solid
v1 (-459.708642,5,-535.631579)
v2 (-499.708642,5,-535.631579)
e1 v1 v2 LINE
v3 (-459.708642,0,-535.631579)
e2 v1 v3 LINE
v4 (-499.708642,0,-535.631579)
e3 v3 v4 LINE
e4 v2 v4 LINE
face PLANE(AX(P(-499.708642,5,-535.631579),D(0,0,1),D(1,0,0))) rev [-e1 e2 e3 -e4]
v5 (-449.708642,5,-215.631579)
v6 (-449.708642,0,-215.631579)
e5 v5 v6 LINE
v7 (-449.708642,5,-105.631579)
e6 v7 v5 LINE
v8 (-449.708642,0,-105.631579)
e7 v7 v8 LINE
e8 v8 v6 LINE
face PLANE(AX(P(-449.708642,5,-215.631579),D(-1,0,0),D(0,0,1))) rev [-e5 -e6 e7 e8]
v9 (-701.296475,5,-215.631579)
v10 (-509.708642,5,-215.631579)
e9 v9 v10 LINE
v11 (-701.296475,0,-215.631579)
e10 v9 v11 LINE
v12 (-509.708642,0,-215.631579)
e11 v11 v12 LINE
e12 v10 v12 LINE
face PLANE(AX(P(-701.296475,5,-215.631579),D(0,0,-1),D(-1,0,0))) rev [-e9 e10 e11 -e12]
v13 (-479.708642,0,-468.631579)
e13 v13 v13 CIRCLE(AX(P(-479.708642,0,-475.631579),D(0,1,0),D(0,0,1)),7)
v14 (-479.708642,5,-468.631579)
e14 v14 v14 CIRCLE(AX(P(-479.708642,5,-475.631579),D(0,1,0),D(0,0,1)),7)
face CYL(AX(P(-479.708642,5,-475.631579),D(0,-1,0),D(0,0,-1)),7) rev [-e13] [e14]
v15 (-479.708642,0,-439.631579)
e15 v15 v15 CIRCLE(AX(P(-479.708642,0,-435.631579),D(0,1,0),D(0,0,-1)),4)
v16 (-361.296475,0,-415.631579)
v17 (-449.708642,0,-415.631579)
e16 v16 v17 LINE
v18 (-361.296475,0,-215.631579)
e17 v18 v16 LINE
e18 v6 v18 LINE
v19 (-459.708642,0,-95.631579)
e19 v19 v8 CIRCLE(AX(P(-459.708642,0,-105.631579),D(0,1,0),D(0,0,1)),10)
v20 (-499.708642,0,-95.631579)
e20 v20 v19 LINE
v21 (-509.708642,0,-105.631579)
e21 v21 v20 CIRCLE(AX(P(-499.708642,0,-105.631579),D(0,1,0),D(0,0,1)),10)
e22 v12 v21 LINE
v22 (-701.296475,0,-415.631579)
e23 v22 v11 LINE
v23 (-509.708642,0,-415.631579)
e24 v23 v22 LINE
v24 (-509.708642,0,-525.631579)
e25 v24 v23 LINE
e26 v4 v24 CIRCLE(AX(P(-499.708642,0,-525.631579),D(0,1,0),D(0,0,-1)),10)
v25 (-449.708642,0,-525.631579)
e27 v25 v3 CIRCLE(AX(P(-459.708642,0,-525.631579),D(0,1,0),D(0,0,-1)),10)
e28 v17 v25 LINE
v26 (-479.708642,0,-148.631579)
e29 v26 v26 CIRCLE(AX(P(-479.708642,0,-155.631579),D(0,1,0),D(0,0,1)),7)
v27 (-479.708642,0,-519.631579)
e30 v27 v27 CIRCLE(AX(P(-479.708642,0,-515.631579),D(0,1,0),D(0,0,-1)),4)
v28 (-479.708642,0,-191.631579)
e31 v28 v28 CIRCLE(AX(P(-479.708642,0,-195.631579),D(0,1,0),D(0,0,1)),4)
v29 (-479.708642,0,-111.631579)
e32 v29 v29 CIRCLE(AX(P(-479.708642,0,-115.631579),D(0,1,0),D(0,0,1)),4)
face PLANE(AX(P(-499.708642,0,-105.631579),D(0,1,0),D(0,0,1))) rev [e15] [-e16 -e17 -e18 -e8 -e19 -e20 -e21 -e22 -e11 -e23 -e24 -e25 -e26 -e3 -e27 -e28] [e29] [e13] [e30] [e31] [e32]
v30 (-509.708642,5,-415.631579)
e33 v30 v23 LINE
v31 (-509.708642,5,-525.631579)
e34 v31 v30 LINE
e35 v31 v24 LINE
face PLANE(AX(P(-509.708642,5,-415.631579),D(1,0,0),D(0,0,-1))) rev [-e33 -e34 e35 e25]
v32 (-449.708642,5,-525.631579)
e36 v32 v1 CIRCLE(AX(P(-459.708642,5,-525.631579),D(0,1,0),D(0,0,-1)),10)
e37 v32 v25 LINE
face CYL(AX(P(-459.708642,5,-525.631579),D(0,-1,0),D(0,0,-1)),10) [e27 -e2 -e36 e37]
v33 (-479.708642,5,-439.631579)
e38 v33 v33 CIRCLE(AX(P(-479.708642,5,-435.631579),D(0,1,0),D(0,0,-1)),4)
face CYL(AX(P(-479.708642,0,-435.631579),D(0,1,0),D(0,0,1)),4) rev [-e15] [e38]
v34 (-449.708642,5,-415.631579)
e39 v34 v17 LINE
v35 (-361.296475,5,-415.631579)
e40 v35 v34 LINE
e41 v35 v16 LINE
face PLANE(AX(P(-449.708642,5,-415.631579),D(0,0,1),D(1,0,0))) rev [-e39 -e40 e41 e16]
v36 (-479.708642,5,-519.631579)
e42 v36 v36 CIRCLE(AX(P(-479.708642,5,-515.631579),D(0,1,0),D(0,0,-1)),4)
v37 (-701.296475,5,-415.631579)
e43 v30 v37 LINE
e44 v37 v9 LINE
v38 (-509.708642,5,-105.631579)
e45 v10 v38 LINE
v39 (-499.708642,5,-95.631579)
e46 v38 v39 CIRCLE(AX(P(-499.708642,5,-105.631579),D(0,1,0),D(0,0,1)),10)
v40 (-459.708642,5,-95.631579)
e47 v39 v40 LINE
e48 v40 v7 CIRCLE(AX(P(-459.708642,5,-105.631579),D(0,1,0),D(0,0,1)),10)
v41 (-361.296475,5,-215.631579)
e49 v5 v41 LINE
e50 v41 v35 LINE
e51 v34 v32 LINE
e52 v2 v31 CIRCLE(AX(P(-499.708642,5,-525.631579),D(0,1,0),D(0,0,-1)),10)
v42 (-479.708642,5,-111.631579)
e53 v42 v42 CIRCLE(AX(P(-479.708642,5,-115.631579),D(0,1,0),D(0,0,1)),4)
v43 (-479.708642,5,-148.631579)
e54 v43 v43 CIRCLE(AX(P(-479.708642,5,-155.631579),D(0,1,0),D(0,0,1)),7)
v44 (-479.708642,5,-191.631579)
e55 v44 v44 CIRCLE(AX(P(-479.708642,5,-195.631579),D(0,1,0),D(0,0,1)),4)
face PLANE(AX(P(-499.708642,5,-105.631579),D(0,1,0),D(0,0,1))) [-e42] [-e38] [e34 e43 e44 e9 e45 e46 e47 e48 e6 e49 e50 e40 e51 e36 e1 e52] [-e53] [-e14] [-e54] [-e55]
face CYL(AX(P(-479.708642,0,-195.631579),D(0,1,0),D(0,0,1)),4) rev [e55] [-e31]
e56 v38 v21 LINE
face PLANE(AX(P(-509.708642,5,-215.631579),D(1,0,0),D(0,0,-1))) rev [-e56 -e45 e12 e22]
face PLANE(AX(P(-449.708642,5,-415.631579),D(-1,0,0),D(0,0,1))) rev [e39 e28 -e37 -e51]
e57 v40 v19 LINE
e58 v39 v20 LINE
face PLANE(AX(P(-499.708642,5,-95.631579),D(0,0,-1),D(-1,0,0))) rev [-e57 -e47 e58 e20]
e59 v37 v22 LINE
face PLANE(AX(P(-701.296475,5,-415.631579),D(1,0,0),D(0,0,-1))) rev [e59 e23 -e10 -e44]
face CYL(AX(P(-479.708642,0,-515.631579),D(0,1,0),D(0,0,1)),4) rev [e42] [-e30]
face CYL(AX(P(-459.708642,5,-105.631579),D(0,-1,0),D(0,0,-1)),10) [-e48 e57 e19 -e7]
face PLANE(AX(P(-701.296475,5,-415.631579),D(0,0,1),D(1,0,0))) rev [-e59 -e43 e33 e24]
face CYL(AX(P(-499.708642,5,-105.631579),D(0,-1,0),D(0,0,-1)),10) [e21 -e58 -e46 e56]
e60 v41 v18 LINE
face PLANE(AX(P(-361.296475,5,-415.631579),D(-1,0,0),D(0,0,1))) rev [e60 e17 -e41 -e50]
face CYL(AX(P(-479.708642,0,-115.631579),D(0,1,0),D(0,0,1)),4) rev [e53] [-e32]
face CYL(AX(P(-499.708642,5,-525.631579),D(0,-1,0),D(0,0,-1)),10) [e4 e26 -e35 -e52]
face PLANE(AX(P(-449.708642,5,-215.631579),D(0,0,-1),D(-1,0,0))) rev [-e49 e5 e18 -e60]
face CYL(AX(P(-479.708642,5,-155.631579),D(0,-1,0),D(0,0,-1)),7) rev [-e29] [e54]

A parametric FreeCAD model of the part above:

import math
import FreeCAD as App
import Part
import Sketcher
Q = App.Units.Quantity

doc = App.newDocument("Part")
params = doc.addObject("Spreadsheet::Sheet", "Params")
for row, (alias, value) in enumerate([
    ("sketch1_diameter", "14 mm"),
    ("sketch1_radius", "10 mm"),
    ("sketch1_width", "40 mm"),
    ("sketch1_height", "110 mm"),
    ("sketch1_height2", "200 mm"),
    ("pad1_length", "5 mm"),
    ("sketch2_diameter", "8 mm"),
], start=1):
    params.set(f"A{row}", alias)
    params.set(f"B{row}", "=" + value)
    params.setAlias(f"B{row}", alias)

body = doc.addObject("PartDesign::Body", "Body")

# Sketch on XZ plane
sketch1 = doc.addObject("Sketcher::SketchObject", "Sketch")
body.addObject(sketch1)
sketch1.AttachmentSupport = (doc.XZ_Plane, [""])
sketch1.MapMode = "FlatFace"
sketch1.addGeometry([
    Part.LineSegment(App.Vector(-361, -416, 0), App.Vector(-450, -416, 0)),  # 0
    Part.LineSegment(App.Vector(-450, -416, 0), App.Vector(-450, -526, 0)),  # 1
    Part.ArcOfCircle(Part.Circle(App.Vector(-460, -526, 0), App.Vector(0, 0, 1), 10), math.radians(-90), math.radians(0)),  # 2
    Part.LineSegment(App.Vector(-460, -536, 0), App.Vector(-500, -536, 0)),  # 3
    Part.ArcOfCircle(Part.Circle(App.Vector(-500, -526, 0), App.Vector(0, 0, 1), 10), math.radians(180), math.radians(270)),  # 4
    Part.LineSegment(App.Vector(-510, -526, 0), App.Vector(-510, -416, 0)),  # 5
    Part.LineSegment(App.Vector(-510, -416, 0), App.Vector(-701, -416, 0)),  # 6
    Part.LineSegment(App.Vector(-701, -416, 0), App.Vector(-701, -216, 0)),  # 7
    Part.LineSegment(App.Vector(-701, -216, 0), App.Vector(-510, -216, 0)),  # 8
    Part.LineSegment(App.Vector(-510, -216, 0), App.Vector(-510, -106, 0)),  # 9
    Part.ArcOfCircle(Part.Circle(App.Vector(-500, -106, 0), App.Vector(0, 0, 1), 10), math.radians(90), math.radians(180)),  # 10
    Part.LineSegment(App.Vector(-500, -96, 0), App.Vector(-460, -96, 0)),  # 11
    Part.ArcOfCircle(Part.Circle(App.Vector(-460, -106, 0), App.Vector(0, 0, 1), 10), math.radians(0), math.radians(90)),  # 12
    Part.LineSegment(App.Vector(-450, -106, 0), App.Vector(-450, -216, 0)),  # 13
    Part.LineSegment(App.Vector(-450, -216, 0), App.Vector(-361, -216, 0)),  # 14
    Part.LineSegment(App.Vector(-361, -216, 0), App.Vector(-361, -416, 0)),  # 15
    Part.Circle(App.Vector(-480, -156, 0), App.Vector(0, 0, 1), 7),  # 16
    Part.Circle(App.Vector(-480, -476, 0), App.Vector(0, 0, 1), 7),  # 17
], False)
sketch1.addConstraint([
    Sketcher.Constraint("Coincident", 0, 2, 1, 1),
    Sketcher.Constraint("Tangent", 1, 2, 2, 2),
    Sketcher.Constraint("Tangent", 2, 1, 3, 1),
    Sketcher.Constraint("Tangent", 3, 2, 4, 2),
    Sketcher.Constraint("Tangent", 4, 1, 5, 1),
    Sketcher.Constraint("Coincident", 5, 2, 6, 1),
    Sketcher.Constraint("Coincident", 6, 2, 7, 1),
    Sketcher.Constraint("Coincident", 7, 2, 8, 1),
    Sketcher.Constraint("Coincident", 8, 2, 9, 1),
    Sketcher.Constraint("Tangent", 9, 2, 10, 2),
    Sketcher.Constraint("Tangent", 10, 1, 11, 1),
    Sketcher.Constraint("Tangent", 11, 2, 12, 2),
    Sketcher.Constraint("Tangent", 12, 1, 13, 1),
    Sketcher.Constraint("Coincident", 13, 2, 14, 1),
    Sketcher.Constraint("Coincident", 14, 2, 15, 1),
    Sketcher.Constraint("Coincident", 15, 2, 0, 1),
    Sketcher.Constraint("Horizontal", 0),
    Sketcher.Constraint("Vertical", 1),
    Sketcher.Constraint("Horizontal", 3),
    Sketcher.Constraint("Vertical", 5),
    Sketcher.Constraint("Horizontal", 6),
    Sketcher.Constraint("Vertical", 7),
    Sketcher.Constraint("Horizontal", 8),
    Sketcher.Constraint("Vertical", 9),
    Sketcher.Constraint("Horizontal", 11),
    Sketcher.Constraint("Vertical", 13),
    Sketcher.Constraint("Horizontal", 14),
    Sketcher.Constraint("Vertical", 15),
    Sketcher.Constraint("Equal", 2, 4),
    Sketcher.Constraint("Equal", 4, 10),
    Sketcher.Constraint("Equal", 10, 12),
    Sketcher.Constraint("Equal", 16, 17),
    Sketcher.Constraint("Horizontal", 0, 2, 5, 2),
    Sketcher.Constraint("Horizontal", 8, 2, 13, 2),
    Sketcher.Constraint("Vertical", 4, 3, 10, 3),
    Sketcher.Constraint("Vertical", 2, 3, 12, 3),
    Sketcher.Constraint("Vertical", 16, 3, 17, 3),
    Sketcher.Constraint("Equal", 5, 9),
    Sketcher.Constraint("Diameter", 16, Q("14 mm")),
    Sketcher.Constraint("Radius", 2, Q("10 mm")),
    Sketcher.Constraint("DistanceX", 3, 2, 3, 1, Q("40 mm")),
    Sketcher.Constraint("DistanceY", 1, 2, 1, 1, Q("110 mm")),
    Sketcher.Constraint("DistanceY", 7, 1, 7, 2, Q("200 mm")),
    Sketcher.Constraint("DistanceX", 10, 3, 16, 3, Q("20 mm")),
    Sketcher.Constraint("DistanceY", 16, 3, 10, 3, Q("50 mm")),
    Sketcher.Constraint("DistanceY", 2, 3, 17, 3, Q("50 mm")),
    Sketcher.Constraint("DistanceX", 0, 2, 0, 1, Q("88.412167 mm")),
    Sketcher.Constraint("DistanceX", 6, 2, 6, 1, Q("191.587833 mm")),
    Sketcher.Constraint("DistanceY", 2, 3, -1, 1, Q("525.631579 mm")),
    Sketcher.Constraint("DistanceX", 2, 3, -1, 1, Q("459.708642 mm")),
])
sketch1.setExpression("Constraints[38]", "Params.sketch1_diameter")
sketch1.setExpression("Constraints[39]", "Params.sketch1_radius")
sketch1.setExpression("Constraints[40]", "Params.sketch1_width")
sketch1.setExpression("Constraints[41]", "Params.sketch1_height")
sketch1.setExpression("Constraints[42]", "Params.sketch1_height2")
pad1 = doc.addObject("PartDesign::Pad", "Pad")
body.addObject(pad1)
pad1.Profile = sketch1
pad1.setExpression("Length", "Params.pad1_length")
pad1.Reversed = True

# Sketch on XZ plane
sketch2 = doc.addObject("Sketcher::SketchObject", "Sketch001")
body.addObject(sketch2)
sketch2.AttachmentSupport = (doc.XZ_Plane, [""])
sketch2.MapMode = "FlatFace"
sketch2.AttachmentOffset = App.Placement(App.Vector(0, 0, -5), App.Rotation())
sketch2.addGeometry([
    Part.Circle(App.Vector(-479.7, -195.6, 0), App.Vector(0, 0, 1), 4),
    Part.Circle(App.Vector(-479.7, -115.6, 0), App.Vector(0, 0, 1), 4),
    Part.Circle(App.Vector(-479.7, -515.6, 0), App.Vector(0, 0, 1), 4),
    Part.Circle(App.Vector(-479.7, -435.6, 0), App.Vector(0, 0, 1), 4),
], False)
sketch2.addConstraint([
    Sketcher.Constraint("Equal", 0, 1),
    Sketcher.Constraint("Equal", 1, 2),
    Sketcher.Constraint("Equal", 2, 3),
    Sketcher.Constraint("Vertical", 0, 3, 1, 3),
    Sketcher.Constraint("Vertical", 1, 3, 2, 3),
    Sketcher.Constraint("Vertical", 2, 3, 3, 3),
    Sketcher.Constraint("Diameter", 0, Q("8 mm")),
    Sketcher.Constraint("DistanceY", 0, 3, 1, 3, Q("80 mm")),
    Sketcher.Constraint("DistanceY", 2, 3, 0, 3, Q("320 mm")),
    Sketcher.Constraint("DistanceY", 2, 3, 3, 3, Q("80 mm")),
    Sketcher.Constraint("DistanceY", 0, 3, -1, 1, Q("195.631579 mm")),
    Sketcher.Constraint("DistanceX", 0, 3, -1, 1, Q("479.708642 mm")),
])
sketch2.setExpression("Constraints[6]", "Params.sketch2_diameter")
pocket1 = doc.addObject("PartDesign::Pocket", "Pocket")
body.addObject(pocket1)
pocket1.Profile = sketch2
pocket1.Type = "ThroughAll"
pocket1.Reversed = True

doc.recompute()
